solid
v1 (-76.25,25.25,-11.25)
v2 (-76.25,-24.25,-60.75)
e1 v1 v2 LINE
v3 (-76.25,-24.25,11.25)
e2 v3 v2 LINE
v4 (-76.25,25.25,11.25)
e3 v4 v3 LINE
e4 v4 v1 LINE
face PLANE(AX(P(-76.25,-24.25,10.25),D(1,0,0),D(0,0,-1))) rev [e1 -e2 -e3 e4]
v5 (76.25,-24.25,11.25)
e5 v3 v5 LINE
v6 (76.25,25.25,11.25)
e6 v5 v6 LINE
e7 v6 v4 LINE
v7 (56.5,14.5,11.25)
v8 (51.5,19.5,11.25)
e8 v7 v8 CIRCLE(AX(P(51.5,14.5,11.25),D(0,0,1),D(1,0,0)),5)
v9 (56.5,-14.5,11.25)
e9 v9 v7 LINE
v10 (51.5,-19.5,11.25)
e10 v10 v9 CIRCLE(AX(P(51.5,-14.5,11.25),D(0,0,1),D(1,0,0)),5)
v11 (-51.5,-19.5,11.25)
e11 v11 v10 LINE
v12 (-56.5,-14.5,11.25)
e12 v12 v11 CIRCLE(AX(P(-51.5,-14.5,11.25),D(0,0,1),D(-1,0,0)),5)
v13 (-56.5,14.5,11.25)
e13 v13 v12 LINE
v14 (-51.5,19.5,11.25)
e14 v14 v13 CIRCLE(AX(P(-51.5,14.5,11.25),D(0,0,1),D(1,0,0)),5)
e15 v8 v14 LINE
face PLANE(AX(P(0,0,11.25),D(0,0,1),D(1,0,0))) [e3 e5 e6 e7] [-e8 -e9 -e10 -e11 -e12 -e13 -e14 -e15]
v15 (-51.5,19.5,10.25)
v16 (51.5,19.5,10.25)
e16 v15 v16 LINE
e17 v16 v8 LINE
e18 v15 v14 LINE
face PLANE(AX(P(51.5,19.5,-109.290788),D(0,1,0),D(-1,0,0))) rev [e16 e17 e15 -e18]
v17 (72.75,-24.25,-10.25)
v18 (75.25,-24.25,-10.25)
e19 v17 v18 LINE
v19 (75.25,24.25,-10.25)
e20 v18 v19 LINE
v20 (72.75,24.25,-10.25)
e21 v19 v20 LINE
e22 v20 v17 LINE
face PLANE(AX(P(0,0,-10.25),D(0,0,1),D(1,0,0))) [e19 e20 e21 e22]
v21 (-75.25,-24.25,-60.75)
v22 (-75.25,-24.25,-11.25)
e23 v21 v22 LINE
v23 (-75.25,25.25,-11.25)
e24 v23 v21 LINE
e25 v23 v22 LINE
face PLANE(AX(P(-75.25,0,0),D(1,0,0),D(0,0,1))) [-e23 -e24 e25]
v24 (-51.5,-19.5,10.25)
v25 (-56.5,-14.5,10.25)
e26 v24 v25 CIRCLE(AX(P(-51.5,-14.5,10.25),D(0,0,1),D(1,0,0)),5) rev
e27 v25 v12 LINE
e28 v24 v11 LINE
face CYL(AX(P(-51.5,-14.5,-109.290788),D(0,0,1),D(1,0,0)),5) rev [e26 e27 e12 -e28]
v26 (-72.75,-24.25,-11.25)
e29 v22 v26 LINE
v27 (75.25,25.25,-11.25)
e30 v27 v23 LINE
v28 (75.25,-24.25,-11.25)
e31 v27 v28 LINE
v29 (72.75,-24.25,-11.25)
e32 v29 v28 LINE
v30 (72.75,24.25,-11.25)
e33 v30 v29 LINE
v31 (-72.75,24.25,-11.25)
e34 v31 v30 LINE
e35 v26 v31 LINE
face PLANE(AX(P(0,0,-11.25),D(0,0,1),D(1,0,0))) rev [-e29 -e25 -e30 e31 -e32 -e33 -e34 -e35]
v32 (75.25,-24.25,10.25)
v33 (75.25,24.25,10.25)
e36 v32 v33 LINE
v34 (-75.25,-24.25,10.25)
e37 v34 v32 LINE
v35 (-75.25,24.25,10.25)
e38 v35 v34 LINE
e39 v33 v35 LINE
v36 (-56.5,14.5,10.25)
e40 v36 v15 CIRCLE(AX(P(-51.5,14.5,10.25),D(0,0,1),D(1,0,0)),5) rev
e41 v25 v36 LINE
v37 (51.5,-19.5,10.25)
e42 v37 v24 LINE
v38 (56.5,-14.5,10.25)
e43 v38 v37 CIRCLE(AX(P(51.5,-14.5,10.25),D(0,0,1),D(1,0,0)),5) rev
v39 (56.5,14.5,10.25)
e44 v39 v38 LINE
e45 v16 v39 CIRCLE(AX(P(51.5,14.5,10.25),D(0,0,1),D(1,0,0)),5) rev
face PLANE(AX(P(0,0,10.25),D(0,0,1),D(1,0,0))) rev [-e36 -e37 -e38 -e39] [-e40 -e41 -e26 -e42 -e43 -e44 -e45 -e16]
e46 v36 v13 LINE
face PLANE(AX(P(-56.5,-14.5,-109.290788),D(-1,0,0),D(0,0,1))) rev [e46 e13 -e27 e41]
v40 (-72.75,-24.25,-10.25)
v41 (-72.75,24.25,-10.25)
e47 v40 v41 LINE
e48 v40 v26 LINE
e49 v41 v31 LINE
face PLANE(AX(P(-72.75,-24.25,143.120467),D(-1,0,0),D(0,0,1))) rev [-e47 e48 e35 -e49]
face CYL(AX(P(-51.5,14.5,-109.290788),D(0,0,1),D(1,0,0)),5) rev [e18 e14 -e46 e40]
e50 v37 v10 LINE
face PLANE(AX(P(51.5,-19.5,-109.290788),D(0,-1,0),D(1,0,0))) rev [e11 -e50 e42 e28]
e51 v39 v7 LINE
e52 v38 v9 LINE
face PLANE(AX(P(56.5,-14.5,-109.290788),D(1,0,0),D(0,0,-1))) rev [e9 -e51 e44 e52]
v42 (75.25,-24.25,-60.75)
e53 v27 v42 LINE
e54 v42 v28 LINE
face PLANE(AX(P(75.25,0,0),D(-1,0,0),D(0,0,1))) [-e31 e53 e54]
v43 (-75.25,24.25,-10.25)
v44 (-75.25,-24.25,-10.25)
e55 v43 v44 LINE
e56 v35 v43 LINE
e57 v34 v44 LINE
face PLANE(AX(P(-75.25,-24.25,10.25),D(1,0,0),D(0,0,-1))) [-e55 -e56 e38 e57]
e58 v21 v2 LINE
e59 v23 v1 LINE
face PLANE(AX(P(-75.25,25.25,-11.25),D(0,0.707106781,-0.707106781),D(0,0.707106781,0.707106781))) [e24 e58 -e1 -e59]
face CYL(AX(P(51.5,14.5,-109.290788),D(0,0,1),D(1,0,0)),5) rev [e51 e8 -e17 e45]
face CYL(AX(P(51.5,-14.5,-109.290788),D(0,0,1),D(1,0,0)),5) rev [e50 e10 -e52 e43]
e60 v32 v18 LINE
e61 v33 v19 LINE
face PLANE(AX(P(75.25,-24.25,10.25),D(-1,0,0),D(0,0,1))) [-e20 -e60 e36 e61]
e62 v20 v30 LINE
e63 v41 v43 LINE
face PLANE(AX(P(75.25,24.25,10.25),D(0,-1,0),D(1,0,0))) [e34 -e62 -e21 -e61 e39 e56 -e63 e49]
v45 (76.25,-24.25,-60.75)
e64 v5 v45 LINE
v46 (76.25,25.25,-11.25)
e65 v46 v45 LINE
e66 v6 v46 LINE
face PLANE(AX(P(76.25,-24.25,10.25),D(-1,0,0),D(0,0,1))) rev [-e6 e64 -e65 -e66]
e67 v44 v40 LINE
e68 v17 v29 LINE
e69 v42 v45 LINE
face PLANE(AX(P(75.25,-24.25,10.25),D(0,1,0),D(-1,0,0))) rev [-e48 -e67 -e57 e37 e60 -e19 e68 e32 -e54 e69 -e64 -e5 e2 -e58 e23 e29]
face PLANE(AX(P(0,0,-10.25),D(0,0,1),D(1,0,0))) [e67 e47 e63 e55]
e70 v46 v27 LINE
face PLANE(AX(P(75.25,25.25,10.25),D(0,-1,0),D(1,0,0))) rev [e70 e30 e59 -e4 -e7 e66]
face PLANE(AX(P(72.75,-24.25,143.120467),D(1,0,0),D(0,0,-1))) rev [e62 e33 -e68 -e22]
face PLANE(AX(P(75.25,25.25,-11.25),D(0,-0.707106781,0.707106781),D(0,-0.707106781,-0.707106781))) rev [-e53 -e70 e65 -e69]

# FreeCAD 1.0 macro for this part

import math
import FreeCAD as App
import Part
import Sketcher
Q = App.Units.Quantity


def faces_at(feature, points):
    """Names of the faces that lie closest to the given points."""
    faces = feature.Shape.Faces
    near = lambda p: min(range(len(faces)), key=lambda i: faces[i].distToShape(Part.Vertex(*p))[0])
    return sorted({f"Face{near(p) + 1}" for p in points})

doc = App.newDocument("Part")
body = doc.addObject("PartDesign::Body", "Body")

# Sketch on XY plane
sketch1 = body.newObject("Sketcher::SketchObject", "Sketch")
sketch1.AttachmentSupport = (doc.getObject("XY_Plane"), [""])
sketch1.MapMode = "FlatFace"
sketch1.addGeometry(Part.LineSegment(App.Vector(-75.25, 24.25, 0), App.Vector(-75.25, -24.25, 0)), False)
sketch1.addGeometry(Part.LineSegment(App.Vector(-75.25, -24.25, 0), App.Vector(75.25, -24.25, 0)), False)
sketch1.addGeometry(Part.LineSegment(App.Vector(75.25, -24.25, 0), App.Vector(75.25, 24.25, 0)), False)
sketch1.addGeometry(Part.LineSegment(App.Vector(75.25, 24.25, 0), App.Vector(-75.25, 24.25, 0)), False)
sketch1.addConstraint(Sketcher.Constraint("Coincident", 0, 2, 1, 1))
sketch1.addConstraint(Sketcher.Constraint("Coincident", 1, 2, 2, 1))
sketch1.addConstraint(Sketcher.Constraint("Coincident", 2, 2, 3, 1))
sketch1.addConstraint(Sketcher.Constraint("Coincident", 3, 2, 0, 1))
sketch1.addConstraint(Sketcher.Constraint("Vertical", 0))
sketch1.addConstraint(Sketcher.Constraint("Horizontal", 1))
sketch1.addConstraint(Sketcher.Constraint("Vertical", 2))
sketch1.addConstraint(Sketcher.Constraint("Horizontal", 3))
sketch1.addConstraint(Sketcher.Constraint("Symmetric", 0, 2, 2, 2, -1, 1))
sketch1.addConstraint(Sketcher.Constraint("DistanceX", 1, 1, 1, 2, Q("150.5 mm")))
sketch1.addConstraint(Sketcher.Constraint("DistanceY", 0, 2, 0, 1, Q("48.5 mm")))
pad1 = body.newObject("PartDesign::Pad", "Pad")
pad1.Profile = sketch1
pad1.Length = 20.5
pad1.Midplane = True
doc.recompute()

thickness = body.newObject("PartDesign::Thickness", "Thickness")
thickness.Base = (pad1, faces_at(pad1, [(0, -24.25, 0)]))
thickness.Value = 1
thickness.Reversed = False
thickness.Join = "Intersection"

# Sketch on XY plane
sketch2 = body.newObject("Sketcher::SketchObject", "Sketch001")
sketch2.AttachmentSupport = (doc.getObject("XY_Plane"), [""])
sketch2.MapMode = "FlatFace"
sketch2.AttachmentOffset = App.Placement(App.Vector(0, 0, -11.25), App.Rotation())
sketch2.addGeometry(Part.LineSegment(App.Vector(72.75, 24.25, 0), App.Vector(72.75, -24.25, 0)), False)
sketch2.addGeometry(Part.LineSegment(App.Vector(72.75, -24.25, 0), App.Vector(-72.75, -24.25, 0)), False)
sketch2.addGeometry(Part.LineSegment(App.Vector(-72.75, -24.25, 0), App.Vector(-72.75, 24.25, 0)), False)
sketch2.addGeometry(Part.LineSegment(App.Vector(-72.75, 24.25, 0), App.Vector(72.75, 24.25, 0)), False)
sketch2.addConstraint(Sketcher.Constraint("Coincident", 0, 2, 1, 1))
sketch2.addConstraint(Sketcher.Constraint("Coincident", 1, 2, 2, 1))
sketch2.addConstraint(Sketcher.Constraint("Coincident", 2, 2, 3, 1))
sketch2.addConstraint(Sketcher.Constraint("Coincident", 3, 2, 0, 1))
sketch2.addConstraint(Sketcher.Constraint("Vertical", 0))
sketch2.addConstraint(Sketcher.Constraint("Horizontal", 1))
sketch2.addConstraint(Sketcher.Constraint("Vertical", 2))
sketch2.addConstraint(Sketcher.Constraint("Horizontal", 3))
sketch2.addConstraint(Sketcher.Constraint("Symmetric", 0, 2, 2, 2, -1, 1))
sketch2.addConstraint(Sketcher.Constraint("DistanceX", 1, 2, 1, 1, Q("145.5 mm")))
sketch2.addConstraint(Sketcher.Constraint("DistanceY", 0, 2, 0, 1, Q("48.5 mm")))
pocket1 = body.newObject("PartDesign::Pocket", "Pocket")
pocket1.Profile = sketch2
pocket1.Length = 1
pocket1.Reversed = True

# Sketch on XY plane
sketch3 = body.newObject("Sketcher::SketchObject", "Sketch002")
sketch3.AttachmentSupport = (doc.getObject("XY_Plane"), [""])
sketch3.MapMode = "FlatFace"
sketch3.AttachmentOffset = App.Placement(App.Vector(0, 0, 11.25), App.Rotation())
sketch3.addGeometry(Part.LineSegment(App.Vector(-51.5, -19.5, 0), App.Vector(51.5, -19.5, 0)), False)
sketch3.addGeometry(Part.ArcOfCircle(Part.Circle(App.Vector(51.5, -14.5, 0), App.Vector(0, 0, 1), 5), math.radians(-90), math.radians(0)), False)
sketch3.addGeometry(Part.LineSegment(App.Vector(56.5, -14.5, 0), App.Vector(56.5, 14.5, 0)), False)
sketch3.addGeometry(Part.ArcOfCircle(Part.Circle(App.Vector(51.5, 14.5, 0), App.Vector(0, 0, 1), 5), math.radians(0), math.radians(90)), False)
sketch3.addGeometry(Part.LineSegment(App.Vector(51.5, 19.5, 0), App.Vector(-51.5, 19.5, 0)), False)
sketch3.addGeometry(Part.ArcOfCircle(Part.Circle(App.Vector(-51.5, 14.5, 0), App.Vector(0, 0, 1), 5), math.radians(90), math.radians(180)), False)
sketch3.addGeometry(Part.LineSegment(App.Vector(-56.5, 14.5, 0), App.Vector(-56.5, -14.5, 0)), False)
sketch3.addGeometry(Part.ArcOfCircle(Part.Circle(App.Vector(-51.5, -14.5, 0), App.Vector(0, 0, 1), 5), math.radians(180), math.radians(270)), False)
sketch3.addConstraint(Sketcher.Constraint("Tangent", 0, 2, 1, 1))
sketch3.addConstraint(Sketcher.Constraint("Tangent", 1, 2, 2, 1))
sketch3.addConstraint(Sketcher.Constraint("Tangent", 2, 2, 3, 1))
sketch3.addConstraint(Sketcher.Constraint("Tangent", 3, 2, 4, 1))
sketch3.addConstraint(Sketcher.Constraint("Tangent", 4, 2, 5, 1))
sketch3.addConstraint(Sketcher.Constraint("Tangent", 5, 2, 6, 1))
sketch3.addConstraint(Sketcher.Constraint("Tangent", 6, 2, 7, 1))
sketch3.addConstraint(Sketcher.Constraint("Tangent", 7, 2, 0, 1))
sketch3.addConstraint(Sketcher.Constraint("Horizontal", 0))
sketch3.addConstraint(Sketcher.Constraint("Vertical", 2))
sketch3.addConstraint(Sketcher.Constraint("Horizontal", 4))
sketch3.addConstraint(Sketcher.Constraint("Vertical", 6))
sketch3.addConstraint(Sketcher.Constraint("Equal", 1, 3))
sketch3.addConstraint(Sketcher.Constraint("Equal", 3, 5))
sketch3.addConstraint(Sketcher.Constraint("Equal", 5, 7))
sketch3.addConstraint(Sketcher.Constraint("Symmetric", 1, 3, 5, 3, -1, 1))
sketch3.addConstraint(Sketcher.Constraint("Radius", 1, Q("5 mm")))
sketch3.addConstraint(Sketcher.Constraint("DistanceX", 0, 1, 0, 2, Q("103 mm")))
sketch3.addConstraint(Sketcher.Constraint("DistanceY", 2, 1, 2, 2, Q("29 mm")))
pocket2 = body.newObject("PartDesign::Pocket", "Pocket001")
pocket2.Profile = sketch3
pocket2.Length = 1

# Sketch on YZ plane
sketch4 = body.newObject("Sketcher::SketchObject", "Sketch003")
sketch4.AttachmentSupport = (doc.getObject("YZ_Plane"), [""])
sketch4.MapMode = "FlatFace"
sketch4.AttachmentOffset = App.Placement(App.Vector(0, 0, 76.25), App.Rotation())
sketch4.addGeometry(Part.LineSegment(App.Vector(-24.25, -60.75, 0), App.Vector(25.25, -11.25, 0)), False)
sketch4.addGeometry(Part.LineSegment(App.Vector(25.25, -11.25, 0), App.Vector(-24.25, -11.25, 0)), False)
sketch4.addGeometry(Part.LineSegment(App.Vector(-24.25, -11.25, 0), App.Vector(-24.25, -60.75, 0)), False)
sketch4.addConstraint(Sketcher.Constraint("Coincident", 0, 2, 1, 1))
sketch4.addConstraint(Sketcher.Constraint("Coincident", 1, 2, 2, 1))
sketch4.addConstraint(Sketcher.Constraint("Coincident", 2, 2, 0, 1))
sketch4.addConstraint(Sketcher.Constraint("Horizontal", 1))
sketch4.addConstraint(Sketcher.Constraint("Vertical", 2))
sketch4.addConstraint(Sketcher.Constraint("Equal", 1, 2))
sketch4.addConstraint(Sketcher.Constraint("DistanceX", 1, 2, 1, 1, Q("49.5 mm")))
sketch4.addConstraint(Sketcher.Constraint("DistanceX", -1, 1, 0, 2, Q("25.25 mm")))
sketch4.addConstraint(Sketcher.Constraint("DistanceY", 0, 2, -1, 1, Q("11.25 mm")))
pad2 = body.newObject("PartDesign::Pad", "Pad001")
pad2.Profile = sketch4
pad2.Length = 1
pad2.Reversed = True
doc.recompute()

mirrored = body.newObject("PartDesign::Mirrored", "Mirrored")
mirrored.Originals = [pad2]
mirrored.MirrorPlane = (doc.getObject("YZ_Plane"), [""])
body.Tip = mirrored

doc.recompute()
